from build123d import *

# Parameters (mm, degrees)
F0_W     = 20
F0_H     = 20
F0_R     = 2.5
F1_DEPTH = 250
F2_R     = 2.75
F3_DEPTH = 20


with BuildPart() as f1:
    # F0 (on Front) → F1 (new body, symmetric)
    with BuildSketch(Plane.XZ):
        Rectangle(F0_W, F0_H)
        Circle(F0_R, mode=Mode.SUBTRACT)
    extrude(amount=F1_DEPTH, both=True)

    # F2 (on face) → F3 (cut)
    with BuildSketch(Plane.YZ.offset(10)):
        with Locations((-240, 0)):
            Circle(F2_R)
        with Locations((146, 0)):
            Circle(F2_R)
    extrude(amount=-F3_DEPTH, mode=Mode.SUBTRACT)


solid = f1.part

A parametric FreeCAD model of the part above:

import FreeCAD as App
import Part
import Sketcher

V = App.Vector
Q = App.Units.Quantity

doc = App.newDocument("Part")
body = doc.addObject("PartDesign::Body", "Body")

# Sketch on XZ plane
sketch1 = body.newObject("Sketcher::SketchObject", "Sketch")
sketch1.AttachmentSupport = (doc.getObject("XZ_Plane"), [""])
sketch1.MapMode = "FlatFace"
sketch1.addGeometry([
    Part.LineSegment(V(-10, 10, 0), V(-10, -10, 0)),  # 0
    Part.LineSegment(V(-10, -10, 0), V(10, -10, 0)),  # 1
    Part.LineSegment(V(10, -10, 0), V(10, 10, 0)),  # 2
    Part.LineSegment(V(10, 10, 0), V(-10, 10, 0)),  # 3
    Part.Circle(V(0, 0, 0), V(0, 0, 1), 2.5),  # 4
], False)
sketch1.addConstraint([
    Sketcher.Constraint("Coincident", 0, 2, 1, 1),
    Sketcher.Constraint("Coincident", 1, 2, 2, 1),
    Sketcher.Constraint("Coincident", 2, 2, 3, 1),
    Sketcher.Constraint("Coincident", 3, 2, 0, 1),
    Sketcher.Constraint("Vertical", 0),
    Sketcher.Constraint("Horizontal", 1),
    Sketcher.Constraint("Vertical", 2),
    Sketcher.Constraint("Horizontal", 3),
    Sketcher.Constraint("Coincident", 4, 3, -1, 1),
    Sketcher.Constraint("Symmetric", 0, 2, 2, 2, -1, 1),
    Sketcher.Constraint("Equal", 3, 0),
    Sketcher.Constraint("Diameter", 4, Q("5 mm")),
    Sketcher.Constraint("DistanceX", 1, 1, 1, 2, Q("20 mm")),
])
pad1 = body.newObject("PartDesign::Pad", "Pad")
pad1.Profile = sketch1
pad1.Length = 500
pad1.Midplane = True

# Sketch on YZ plane
sketch2 = body.newObject("Sketcher::SketchObject", "Sketch001")
sketch2.AttachmentSupport = (doc.getObject("YZ_Plane"), [""])
sketch2.MapMode = "FlatFace"
sketch2.AttachmentOffset = App.Placement(V(0, 0, 10), App.Rotation())
sketch2.addGeometry([
    Part.Circle(V(-240, 0, 0), V(0, 0, 1), 2.8),
    Part.Circle(V(146, 0, 0), V(0, 0, 1), 2.8),
], False)
sketch2.addConstraint([
    Sketcher.Constraint("Equal", 0, 1),
    Sketcher.Constraint("PointOnObject", 0, 3, -1),
    Sketcher.Constraint("PointOnObject", 1, 3, -1),
    Sketcher.Constraint("Diameter", 0, Q("5.5 mm")),
    Sketcher.Constraint("DistanceX", 0, 3, -1, 1, Q("240 mm")),
    Sketcher.Constraint("DistanceX", -1, 1, 1, 3, Q("146 mm")),
])
pocket1 = body.newObject("PartDesign::Pocket", "Pocket")
pocket1.Profile = sketch2
pocket1.Length = 20

doc.recompute()
